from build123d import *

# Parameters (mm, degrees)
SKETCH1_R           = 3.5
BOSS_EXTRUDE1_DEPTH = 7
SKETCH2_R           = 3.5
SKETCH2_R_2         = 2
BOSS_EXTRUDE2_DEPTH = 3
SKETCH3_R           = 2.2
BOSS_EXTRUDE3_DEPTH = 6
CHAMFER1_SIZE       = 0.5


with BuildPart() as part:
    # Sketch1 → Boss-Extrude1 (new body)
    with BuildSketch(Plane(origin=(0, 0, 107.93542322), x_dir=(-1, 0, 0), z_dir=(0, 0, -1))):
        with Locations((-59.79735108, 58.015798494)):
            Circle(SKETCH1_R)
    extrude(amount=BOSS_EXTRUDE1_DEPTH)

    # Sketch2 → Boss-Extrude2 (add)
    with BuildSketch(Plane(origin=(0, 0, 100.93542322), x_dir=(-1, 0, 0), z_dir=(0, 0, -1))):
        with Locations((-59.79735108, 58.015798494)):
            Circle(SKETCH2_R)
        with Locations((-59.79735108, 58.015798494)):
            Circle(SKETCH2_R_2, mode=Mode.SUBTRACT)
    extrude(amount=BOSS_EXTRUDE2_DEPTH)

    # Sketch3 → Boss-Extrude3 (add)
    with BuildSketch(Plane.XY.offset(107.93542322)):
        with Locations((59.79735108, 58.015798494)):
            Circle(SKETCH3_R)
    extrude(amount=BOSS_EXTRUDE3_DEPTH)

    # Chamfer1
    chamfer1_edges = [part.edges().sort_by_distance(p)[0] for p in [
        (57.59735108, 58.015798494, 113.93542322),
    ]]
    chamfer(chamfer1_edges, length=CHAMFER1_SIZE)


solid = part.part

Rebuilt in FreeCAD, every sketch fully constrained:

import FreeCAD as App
import Part
import Sketcher

V = App.Vector
Q = App.Units.Quantity


def edges_at(feature, points):
    """Names of the edges that pass closest to the given points."""
    edges = feature.Shape.Edges
    near = lambda p: min(range(len(edges)), key=lambda i: edges[i].distToShape(Part.Vertex(*p))[0])
    return sorted({f"Edge{near(p) + 1}" for p in points})

doc = App.newDocument("Part")
body = doc.addObject("PartDesign::Body", "Body")

sketch1 = body.newObject("Sketcher::SketchObject", "Sketch")
sketch1.AttachmentSupport = (doc.getObject("XY_Plane"), [""])
sketch1.MapMode = "FlatFace"
sketch1.AttachmentOffset = App.Placement(V(0, 0, 107.935423), App.Rotation())
sketch1.addGeometry(Part.Circle(V(59.8, 58, 0), V(0, 0, 1), 3.5), False)
sketch1.addConstraint(Sketcher.Constraint("Diameter", 0, Q("7 mm")))
sketch1.addConstraint(Sketcher.Constraint("DistanceY", -1, 1, 0, 3, Q("58.015798 mm")))
sketch1.addConstraint(Sketcher.Constraint("DistanceX", -1, 1, 0, 3, Q("59.797351 mm")))
pad1 = body.newObject("PartDesign::Pad", "Pad")
pad1.Profile = sketch1
pad1.Length = 7
pad1.Reversed = True

sketch2 = body.newObject("Sketcher::SketchObject", "Sketch001")
sketch2.AttachmentSupport = (doc.getObject("XY_Plane"), [""])
sketch2.MapMode = "FlatFace"
sketch2.AttachmentOffset = App.Placement(V(0, 0, 100.935423), App.Rotation())
sketch2.addGeometry(Part.Circle(V(59.8, 58, 0), V(0, 0, 1), 3.5), False)
sketch2.addGeometry(Part.Circle(V(59.8, 58, 0), V(0, 0, 1), 2), False)
sketch2.addConstraint(Sketcher.Constraint("Coincident", 1, 3, 0, 3))
sketch2.addConstraint(Sketcher.Constraint("Diameter", 0, Q("7 mm")))
sketch2.addConstraint(Sketcher.Constraint("Diameter", 1, Q("4 mm")))
sketch2.addConstraint(Sketcher.Constraint("DistanceY", -1, 1, 0, 3, Q("58.015798 mm")))
sketch2.addConstraint(Sketcher.Constraint("DistanceX", -1, 1, 0, 3, Q("59.797351 mm")))
pad2 = body.newObject("PartDesign::Pad", "Pad001")
pad2.Profile = sketch2
pad2.Length = 3
pad2.Reversed = True

sketch3 = body.newObject("Sketcher::SketchObject", "Sketch002")
sketch3.AttachmentSupport = (doc.getObject("XY_Plane"), [""])
sketch3.MapMode = "FlatFace"
sketch3.AttachmentOffset = App.Placement(V(0, 0, 107.935423), App.Rotation())
sketch3.addGeometry(Part.Circle(V(59.8, 58, 0), V(0, 0, 1), 2.2), False)
sketch3.addConstraint(Sketcher.Constraint("Diameter", 0, Q("4.4 mm")))
sketch3.addConstraint(Sketcher.Constraint("DistanceY", -1, 1, 0, 3, Q("58.015798 mm")))
sketch3.addConstraint(Sketcher.Constraint("DistanceX", -1, 1, 0, 3, Q("59.797351 mm")))
pad3 = body.newObject("PartDesign::Pad", "Pad002")
pad3.Profile = sketch3
pad3.Length = 6
doc.recompute()

chamfer = body.newObject("PartDesign::Chamfer", "Chamfer")
chamfer.Base = (pad3, edges_at(pad3, [(57.597, 58.016, 113.935)]))
chamfer.Size = 0.5

doc.recompute()
